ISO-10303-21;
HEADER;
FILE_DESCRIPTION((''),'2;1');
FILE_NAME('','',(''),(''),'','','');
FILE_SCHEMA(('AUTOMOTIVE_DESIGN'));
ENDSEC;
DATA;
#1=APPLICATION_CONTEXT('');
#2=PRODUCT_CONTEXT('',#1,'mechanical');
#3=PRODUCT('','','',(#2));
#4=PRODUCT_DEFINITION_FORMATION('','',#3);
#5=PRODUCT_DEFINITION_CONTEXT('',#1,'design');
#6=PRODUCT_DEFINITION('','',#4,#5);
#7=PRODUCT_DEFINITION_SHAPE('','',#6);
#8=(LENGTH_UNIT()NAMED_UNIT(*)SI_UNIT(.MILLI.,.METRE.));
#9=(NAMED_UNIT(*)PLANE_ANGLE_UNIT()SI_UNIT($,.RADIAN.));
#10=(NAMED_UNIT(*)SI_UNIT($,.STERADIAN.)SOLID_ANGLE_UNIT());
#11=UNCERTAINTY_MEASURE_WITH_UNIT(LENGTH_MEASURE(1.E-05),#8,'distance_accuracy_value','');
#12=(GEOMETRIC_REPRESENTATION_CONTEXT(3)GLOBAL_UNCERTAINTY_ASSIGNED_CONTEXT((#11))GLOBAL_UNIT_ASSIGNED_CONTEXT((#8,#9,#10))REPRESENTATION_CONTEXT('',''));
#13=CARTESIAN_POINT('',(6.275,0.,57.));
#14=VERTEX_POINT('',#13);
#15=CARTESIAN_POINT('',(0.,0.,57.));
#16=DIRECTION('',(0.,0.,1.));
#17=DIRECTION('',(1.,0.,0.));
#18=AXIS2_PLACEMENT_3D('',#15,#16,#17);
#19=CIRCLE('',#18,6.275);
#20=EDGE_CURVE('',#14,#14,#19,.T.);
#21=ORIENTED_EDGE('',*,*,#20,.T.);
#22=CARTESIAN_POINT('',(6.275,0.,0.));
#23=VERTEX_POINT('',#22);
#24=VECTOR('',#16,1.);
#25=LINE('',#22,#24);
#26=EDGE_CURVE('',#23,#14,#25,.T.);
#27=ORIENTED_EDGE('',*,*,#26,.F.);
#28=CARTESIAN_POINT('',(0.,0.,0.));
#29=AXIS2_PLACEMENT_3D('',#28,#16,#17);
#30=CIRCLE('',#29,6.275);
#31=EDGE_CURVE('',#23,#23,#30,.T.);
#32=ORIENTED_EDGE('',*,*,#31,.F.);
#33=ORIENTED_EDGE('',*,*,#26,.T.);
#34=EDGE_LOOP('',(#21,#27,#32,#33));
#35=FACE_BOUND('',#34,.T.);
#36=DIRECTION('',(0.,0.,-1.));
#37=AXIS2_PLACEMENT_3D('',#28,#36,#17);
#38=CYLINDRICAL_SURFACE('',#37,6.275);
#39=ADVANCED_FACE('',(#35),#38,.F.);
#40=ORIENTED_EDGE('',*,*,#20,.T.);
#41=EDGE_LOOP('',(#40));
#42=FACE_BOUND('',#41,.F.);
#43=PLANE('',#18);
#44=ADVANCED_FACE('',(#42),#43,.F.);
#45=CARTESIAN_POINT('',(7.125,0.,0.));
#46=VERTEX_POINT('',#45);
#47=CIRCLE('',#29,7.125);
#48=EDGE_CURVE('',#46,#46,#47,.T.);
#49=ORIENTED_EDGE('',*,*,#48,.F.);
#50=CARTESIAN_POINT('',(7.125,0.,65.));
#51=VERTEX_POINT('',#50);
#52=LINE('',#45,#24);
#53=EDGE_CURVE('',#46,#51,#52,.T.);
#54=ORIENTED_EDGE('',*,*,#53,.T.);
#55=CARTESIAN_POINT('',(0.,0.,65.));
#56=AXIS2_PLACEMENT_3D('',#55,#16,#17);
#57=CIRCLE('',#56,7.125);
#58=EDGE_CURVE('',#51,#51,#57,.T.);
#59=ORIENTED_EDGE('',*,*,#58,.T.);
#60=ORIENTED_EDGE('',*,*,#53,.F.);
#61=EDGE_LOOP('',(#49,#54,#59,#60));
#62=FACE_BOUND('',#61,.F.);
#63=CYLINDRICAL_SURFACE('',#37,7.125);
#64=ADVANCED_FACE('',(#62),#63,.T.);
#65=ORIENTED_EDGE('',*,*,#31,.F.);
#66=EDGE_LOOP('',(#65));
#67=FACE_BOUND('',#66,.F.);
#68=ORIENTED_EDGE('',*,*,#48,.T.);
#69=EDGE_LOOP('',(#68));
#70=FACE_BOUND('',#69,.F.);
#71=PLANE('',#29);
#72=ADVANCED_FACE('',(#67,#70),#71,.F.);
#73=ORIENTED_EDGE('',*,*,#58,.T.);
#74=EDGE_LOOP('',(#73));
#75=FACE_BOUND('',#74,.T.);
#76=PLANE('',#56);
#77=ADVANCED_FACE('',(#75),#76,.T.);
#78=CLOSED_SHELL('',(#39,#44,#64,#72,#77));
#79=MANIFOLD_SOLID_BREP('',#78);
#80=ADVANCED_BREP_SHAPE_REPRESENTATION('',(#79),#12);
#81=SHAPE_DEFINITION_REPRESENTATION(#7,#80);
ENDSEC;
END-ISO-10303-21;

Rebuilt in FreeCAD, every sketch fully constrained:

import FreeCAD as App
import Part
import Sketcher

V = App.Vector

doc = App.newDocument("Part")
body = doc.addObject("PartDesign::Body", "Body")

# Sketch on XY plane
sketch1 = doc.addObject("Sketcher::SketchObject", "Sketch")
body.addObject(sketch1)
sketch1.AttachmentSupport = (doc.XY_Plane, [""])
sketch1.MapMode = "FlatFace"
sketch1.addGeometry(Part.Circle(V(0, 0, 0), V(0, 0, 1), 7.125), False)
sketch1.addConstraint([
    Sketcher.Constraint("Coincident", 0, 3, -1, 1),
    Sketcher.Constraint("Diameter", 0, 14.25),
])
pad1 = doc.addObject("PartDesign::Pad", "Pad")
body.addObject(pad1)
pad1.Profile = sketch1
pad1.Length = 65

# Sketch on XY plane
sketch2 = doc.addObject("Sketcher::SketchObject", "Sketch001")
body.addObject(sketch2)
sketch2.AttachmentSupport = (doc.XY_Plane, [""])
sketch2.MapMode = "FlatFace"
sketch2.addGeometry(Part.Circle(V(0, 0, 0), V(0, 0, 1), 6.275), False)
sketch2.addConstraint([
    Sketcher.Constraint("Coincident", 0, 3, -1, 1),
    Sketcher.Constraint("Diameter", 0, 12.55),
])
pocket1 = doc.addObject("PartDesign::Pocket", "Pocket")
body.addObject(pocket1)
pocket1.Profile = sketch2
pocket1.Length = 57
pocket1.Reversed = True

doc.recompute()
